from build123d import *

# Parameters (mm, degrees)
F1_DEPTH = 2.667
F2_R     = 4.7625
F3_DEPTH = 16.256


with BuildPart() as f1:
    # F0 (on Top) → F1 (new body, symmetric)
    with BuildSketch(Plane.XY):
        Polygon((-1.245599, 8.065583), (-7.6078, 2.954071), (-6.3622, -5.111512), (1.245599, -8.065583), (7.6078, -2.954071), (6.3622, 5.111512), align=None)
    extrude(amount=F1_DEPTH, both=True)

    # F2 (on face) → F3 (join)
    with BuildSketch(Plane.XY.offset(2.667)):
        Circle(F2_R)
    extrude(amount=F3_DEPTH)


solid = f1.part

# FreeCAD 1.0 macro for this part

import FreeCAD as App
import Part
import Sketcher
from FreeCAD import Vector
Q = App.Units.Quantity

doc = App.newDocument("Part")
body = doc.addObject("PartDesign::Body", "Body")

sketch1 = body.newObject("Sketcher::SketchObject", "Sketch")
sketch1.AttachmentSupport = (doc.getObject("XY_Plane"), [""])
sketch1.MapMode = "FlatFace"
sketch1.addGeometry(Part.LineSegment(Vector(-1, 8, 0), Vector(-8, 3, 0)), False)
sketch1.addGeometry(Part.LineSegment(Vector(-8, 3, 0), Vector(-6, -5, 0)), False)
sketch1.addGeometry(Part.LineSegment(Vector(-6, -5, 0), Vector(1, -8, 0)), False)
sketch1.addGeometry(Part.LineSegment(Vector(1, -8, 0), Vector(8, -3, 0)), False)
sketch1.addGeometry(Part.LineSegment(Vector(8, -3, 0), Vector(6, 5, 0)), False)
sketch1.addGeometry(Part.LineSegment(Vector(6, 5, 0), Vector(-1, 8, 0)), False)
sketch1.addConstraint(Sketcher.Constraint("Coincident", 0, 2, 1, 1))
sketch1.addConstraint(Sketcher.Constraint("Coincident", 1, 2, 2, 1))
sketch1.addConstraint(Sketcher.Constraint("Coincident", 2, 2, 3, 1))
sketch1.addConstraint(Sketcher.Constraint("Coincident", 3, 2, 4, 1))
sketch1.addConstraint(Sketcher.Constraint("Coincident", 4, 2, 5, 1))
sketch1.addConstraint(Sketcher.Constraint("Coincident", 5, 2, 0, 1))
sketch1.addConstraint(Sketcher.Constraint("Symmetric", 0, 2, 3, 2, -1, 1))
sketch1.addConstraint(Sketcher.Constraint("Symmetric", 1, 2, 4, 2, -1, 1))
sketch1.addConstraint(Sketcher.Constraint("Symmetric", 2, 2, 5, 2, -1, 1))
sketch1.addConstraint(Sketcher.Constraint("Equal", 0, 1))
sketch1.addConstraint(Sketcher.Constraint("Equal", 1, 2))
sketch1.addConstraint(Sketcher.Constraint("DistanceX", 1, 2, 3, 2, Q("0.55 in")))
sketch1.addConstraint(Sketcher.Constraint("Distance", 0, Q("8.161198 mm")))
sketch1.addConstraint(Sketcher.Constraint("DistanceX", 0, 2, -1, 1, Q("7.6078 mm")))
sketch1.addConstraint(Sketcher.Constraint("DistanceX", -1, 1, 2, 2, Q("1.245599 mm")))
pad1 = body.newObject("PartDesign::Pad", "Pad")
pad1.Profile = sketch1
pad1.Length = Q("0.21 in")
pad1.Midplane = True

sketch2 = body.newObject("Sketcher::SketchObject", "Sketch001")
sketch2.AttachmentSupport = (doc.getObject("XY_Plane"), [""])
sketch2.MapMode = "FlatFace"
sketch2.AttachmentOffset = App.Placement(Vector(0, 0, 0.105 * 25.4), App.Rotation())
sketch2.addGeometry(Part.Circle(Vector(0, 0, 0), Vector(0, 0, 1), 4.8), False)
sketch2.addConstraint(Sketcher.Constraint("Coincident", 0, 3, -1, 1))
sketch2.addConstraint(Sketcher.Constraint("Diameter", 0, Q("0.375 in")))
pad2 = body.newObject("PartDesign::Pad", "Pad001")
pad2.Profile = sketch2
pad2.Length = Q("0.64 in")

doc.recompute()
